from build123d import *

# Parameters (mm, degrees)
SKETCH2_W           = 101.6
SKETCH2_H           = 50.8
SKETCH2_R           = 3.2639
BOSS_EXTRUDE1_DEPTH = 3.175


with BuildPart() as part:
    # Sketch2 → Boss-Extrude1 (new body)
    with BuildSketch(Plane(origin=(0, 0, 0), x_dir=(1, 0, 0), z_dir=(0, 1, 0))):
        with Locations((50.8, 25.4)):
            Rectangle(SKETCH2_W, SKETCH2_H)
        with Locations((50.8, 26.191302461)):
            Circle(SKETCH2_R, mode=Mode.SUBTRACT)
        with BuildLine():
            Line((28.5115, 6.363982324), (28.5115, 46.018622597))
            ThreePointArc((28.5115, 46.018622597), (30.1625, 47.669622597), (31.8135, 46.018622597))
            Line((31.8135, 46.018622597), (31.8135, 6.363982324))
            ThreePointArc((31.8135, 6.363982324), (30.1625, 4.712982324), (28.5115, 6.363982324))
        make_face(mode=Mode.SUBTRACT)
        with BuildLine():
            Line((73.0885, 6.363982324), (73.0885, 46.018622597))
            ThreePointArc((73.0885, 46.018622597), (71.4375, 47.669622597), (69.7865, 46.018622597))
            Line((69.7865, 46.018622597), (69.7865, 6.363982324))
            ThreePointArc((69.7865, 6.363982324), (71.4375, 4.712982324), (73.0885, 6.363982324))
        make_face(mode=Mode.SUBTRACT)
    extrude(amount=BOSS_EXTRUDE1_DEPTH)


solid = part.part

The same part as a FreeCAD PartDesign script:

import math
import FreeCAD as App
import Part
import Sketcher
Q = App.Units.Quantity


def add_polygon(sketch, points):
    """Adds a closed chain of lines whose ends are joined by coincident constraints."""
    first, n = sketch.GeometryCount, len(points)
    for a, b in zip(points, points[1:] + points[:1]):
        sketch.addGeometry(Part.LineSegment(App.Vector(*a, 0), App.Vector(*b, 0)), False)
    for i in range(n):
        sketch.addConstraint(Sketcher.Constraint("Coincident", first + i, 2, first + (i + 1) % n, 1))

doc = App.newDocument("Part")
body = doc.addObject("PartDesign::Body", "Body")

# Sketch on XZ plane
sketch1 = doc.addObject("Sketcher::SketchObject", "Sketch")
body.addObject(sketch1)
sketch1.AttachmentSupport = (doc.XZ_Plane, [""])
sketch1.MapMode = "FlatFace"
add_polygon(sketch1, [(0, -50.8), (0, 0), (101.6, 0), (101.6, -50.8)])  # lines 0-3
sketch1.addGeometry(Part.ArcOfCircle(Part.Circle(App.Vector(30.2, -6.4, 0), App.Vector(0, 0, 1), 1.7), math.radians(0), math.radians(180)), False)  # 4
sketch1.addGeometry(Part.LineSegment(App.Vector(28.5, -6.4, 0), App.Vector(28.5, -46, 0)), False)  # 5
sketch1.addGeometry(Part.ArcOfCircle(Part.Circle(App.Vector(30.2, -46, 0), App.Vector(0, 0, 1), 1.7), math.radians(180), math.radians(360)), False)  # 6
sketch1.addGeometry(Part.LineSegment(App.Vector(31.8, -46, 0), App.Vector(31.8, -6.4, 0)), False)  # 7
sketch1.addGeometry(Part.Circle(App.Vector(50.8, -26.2, 0), App.Vector(0, 0, 1), 3.3), False)  # 8
sketch1.addGeometry(Part.LineSegment(App.Vector(73.1, -46, 0), App.Vector(73.1, -6.4, 0)), False)  # 9
sketch1.addGeometry(Part.ArcOfCircle(Part.Circle(App.Vector(71.4, -6.4, 0), App.Vector(0, 0, 1), 1.7), math.radians(0), math.radians(180)), False)  # 10
sketch1.addGeometry(Part.LineSegment(App.Vector(69.8, -6.4, 0), App.Vector(69.8, -46, 0)), False)  # 11
sketch1.addGeometry(Part.ArcOfCircle(Part.Circle(App.Vector(71.4, -46, 0), App.Vector(0, 0, 1), 1.7), math.radians(180), math.radians(360)), False)  # 12
sketch1.addConstraint(Sketcher.Constraint("Tangent", 4, 2, 5, 1))
sketch1.addConstraint(Sketcher.Constraint("Tangent", 5, 2, 6, 1))
sketch1.addConstraint(Sketcher.Constraint("Tangent", 6, 2, 7, 1))
sketch1.addConstraint(Sketcher.Constraint("Tangent", 7, 2, 4, 1))
sketch1.addConstraint(Sketcher.Constraint("Tangent", 9, 2, 10, 1))
sketch1.addConstraint(Sketcher.Constraint("Tangent", 10, 2, 11, 1))
sketch1.addConstraint(Sketcher.Constraint("Tangent", 11, 2, 12, 1))
sketch1.addConstraint(Sketcher.Constraint("Tangent", 12, 2, 9, 1))
sketch1.addConstraint(Sketcher.Constraint("Vertical", 0))
sketch1.addConstraint(Sketcher.Constraint("Horizontal", 1))
sketch1.addConstraint(Sketcher.Constraint("Vertical", 2))
sketch1.addConstraint(Sketcher.Constraint("Horizontal", 3))
sketch1.addConstraint(Sketcher.Constraint("Vertical", 5))
sketch1.addConstraint(Sketcher.Constraint("Vertical", 7))
sketch1.addConstraint(Sketcher.Constraint("Vertical", 9))
sketch1.addConstraint(Sketcher.Constraint("Vertical", 11))
sketch1.addConstraint(Sketcher.Constraint("Coincident", 0, 2, -1, 1))
sketch1.addConstraint(Sketcher.Constraint("Equal", 6, 10))
sketch1.addConstraint(Sketcher.Constraint("Horizontal", 4, 3, 10, 3))
sketch1.addConstraint(Sketcher.Constraint("Horizontal", 6, 3, 12, 3))
sketch1.addConstraint(Sketcher.Constraint("DistanceX", 1, 1, 1, 2, Q("4 in")))
sketch1.addConstraint(Sketcher.Constraint("DistanceY", 0, 1, 0, 2, Q("2 in")))
sketch1.addConstraint(Sketcher.Constraint("Diameter", 8, Q("0.257 in")))
sketch1.addConstraint(Sketcher.Constraint("DistanceX", -1, 1, 8, 3, Q("2 in")))
sketch1.addConstraint(Sketcher.Constraint("Radius", 4, Q("0.065 in")))
sketch1.addConstraint(Sketcher.Constraint("DistanceX", 4, 2, 10, 3, Q("1.69 in")))
sketch1.addConstraint(Sketcher.Constraint("DistanceX", -1, 1, 4, 3, Q("1.1875 in")))
sketch1.addConstraint(Sketcher.Constraint("DistanceY", 5, 2, 5, 1, 39.65464))
sketch1.addConstraint(Sketcher.Constraint("DistanceY", 6, 3, 8, 3, 19.82732))
sketch1.addConstraint(Sketcher.Constraint("DistanceY", 4, 3, -1, 1, 6.363982))
pad1 = doc.addObject("PartDesign::Pad", "Pad")
body.addObject(pad1)
pad1.Profile = sketch1
pad1.Length = Q("0.125 in")
pad1.Reversed = True

doc.recompute()
